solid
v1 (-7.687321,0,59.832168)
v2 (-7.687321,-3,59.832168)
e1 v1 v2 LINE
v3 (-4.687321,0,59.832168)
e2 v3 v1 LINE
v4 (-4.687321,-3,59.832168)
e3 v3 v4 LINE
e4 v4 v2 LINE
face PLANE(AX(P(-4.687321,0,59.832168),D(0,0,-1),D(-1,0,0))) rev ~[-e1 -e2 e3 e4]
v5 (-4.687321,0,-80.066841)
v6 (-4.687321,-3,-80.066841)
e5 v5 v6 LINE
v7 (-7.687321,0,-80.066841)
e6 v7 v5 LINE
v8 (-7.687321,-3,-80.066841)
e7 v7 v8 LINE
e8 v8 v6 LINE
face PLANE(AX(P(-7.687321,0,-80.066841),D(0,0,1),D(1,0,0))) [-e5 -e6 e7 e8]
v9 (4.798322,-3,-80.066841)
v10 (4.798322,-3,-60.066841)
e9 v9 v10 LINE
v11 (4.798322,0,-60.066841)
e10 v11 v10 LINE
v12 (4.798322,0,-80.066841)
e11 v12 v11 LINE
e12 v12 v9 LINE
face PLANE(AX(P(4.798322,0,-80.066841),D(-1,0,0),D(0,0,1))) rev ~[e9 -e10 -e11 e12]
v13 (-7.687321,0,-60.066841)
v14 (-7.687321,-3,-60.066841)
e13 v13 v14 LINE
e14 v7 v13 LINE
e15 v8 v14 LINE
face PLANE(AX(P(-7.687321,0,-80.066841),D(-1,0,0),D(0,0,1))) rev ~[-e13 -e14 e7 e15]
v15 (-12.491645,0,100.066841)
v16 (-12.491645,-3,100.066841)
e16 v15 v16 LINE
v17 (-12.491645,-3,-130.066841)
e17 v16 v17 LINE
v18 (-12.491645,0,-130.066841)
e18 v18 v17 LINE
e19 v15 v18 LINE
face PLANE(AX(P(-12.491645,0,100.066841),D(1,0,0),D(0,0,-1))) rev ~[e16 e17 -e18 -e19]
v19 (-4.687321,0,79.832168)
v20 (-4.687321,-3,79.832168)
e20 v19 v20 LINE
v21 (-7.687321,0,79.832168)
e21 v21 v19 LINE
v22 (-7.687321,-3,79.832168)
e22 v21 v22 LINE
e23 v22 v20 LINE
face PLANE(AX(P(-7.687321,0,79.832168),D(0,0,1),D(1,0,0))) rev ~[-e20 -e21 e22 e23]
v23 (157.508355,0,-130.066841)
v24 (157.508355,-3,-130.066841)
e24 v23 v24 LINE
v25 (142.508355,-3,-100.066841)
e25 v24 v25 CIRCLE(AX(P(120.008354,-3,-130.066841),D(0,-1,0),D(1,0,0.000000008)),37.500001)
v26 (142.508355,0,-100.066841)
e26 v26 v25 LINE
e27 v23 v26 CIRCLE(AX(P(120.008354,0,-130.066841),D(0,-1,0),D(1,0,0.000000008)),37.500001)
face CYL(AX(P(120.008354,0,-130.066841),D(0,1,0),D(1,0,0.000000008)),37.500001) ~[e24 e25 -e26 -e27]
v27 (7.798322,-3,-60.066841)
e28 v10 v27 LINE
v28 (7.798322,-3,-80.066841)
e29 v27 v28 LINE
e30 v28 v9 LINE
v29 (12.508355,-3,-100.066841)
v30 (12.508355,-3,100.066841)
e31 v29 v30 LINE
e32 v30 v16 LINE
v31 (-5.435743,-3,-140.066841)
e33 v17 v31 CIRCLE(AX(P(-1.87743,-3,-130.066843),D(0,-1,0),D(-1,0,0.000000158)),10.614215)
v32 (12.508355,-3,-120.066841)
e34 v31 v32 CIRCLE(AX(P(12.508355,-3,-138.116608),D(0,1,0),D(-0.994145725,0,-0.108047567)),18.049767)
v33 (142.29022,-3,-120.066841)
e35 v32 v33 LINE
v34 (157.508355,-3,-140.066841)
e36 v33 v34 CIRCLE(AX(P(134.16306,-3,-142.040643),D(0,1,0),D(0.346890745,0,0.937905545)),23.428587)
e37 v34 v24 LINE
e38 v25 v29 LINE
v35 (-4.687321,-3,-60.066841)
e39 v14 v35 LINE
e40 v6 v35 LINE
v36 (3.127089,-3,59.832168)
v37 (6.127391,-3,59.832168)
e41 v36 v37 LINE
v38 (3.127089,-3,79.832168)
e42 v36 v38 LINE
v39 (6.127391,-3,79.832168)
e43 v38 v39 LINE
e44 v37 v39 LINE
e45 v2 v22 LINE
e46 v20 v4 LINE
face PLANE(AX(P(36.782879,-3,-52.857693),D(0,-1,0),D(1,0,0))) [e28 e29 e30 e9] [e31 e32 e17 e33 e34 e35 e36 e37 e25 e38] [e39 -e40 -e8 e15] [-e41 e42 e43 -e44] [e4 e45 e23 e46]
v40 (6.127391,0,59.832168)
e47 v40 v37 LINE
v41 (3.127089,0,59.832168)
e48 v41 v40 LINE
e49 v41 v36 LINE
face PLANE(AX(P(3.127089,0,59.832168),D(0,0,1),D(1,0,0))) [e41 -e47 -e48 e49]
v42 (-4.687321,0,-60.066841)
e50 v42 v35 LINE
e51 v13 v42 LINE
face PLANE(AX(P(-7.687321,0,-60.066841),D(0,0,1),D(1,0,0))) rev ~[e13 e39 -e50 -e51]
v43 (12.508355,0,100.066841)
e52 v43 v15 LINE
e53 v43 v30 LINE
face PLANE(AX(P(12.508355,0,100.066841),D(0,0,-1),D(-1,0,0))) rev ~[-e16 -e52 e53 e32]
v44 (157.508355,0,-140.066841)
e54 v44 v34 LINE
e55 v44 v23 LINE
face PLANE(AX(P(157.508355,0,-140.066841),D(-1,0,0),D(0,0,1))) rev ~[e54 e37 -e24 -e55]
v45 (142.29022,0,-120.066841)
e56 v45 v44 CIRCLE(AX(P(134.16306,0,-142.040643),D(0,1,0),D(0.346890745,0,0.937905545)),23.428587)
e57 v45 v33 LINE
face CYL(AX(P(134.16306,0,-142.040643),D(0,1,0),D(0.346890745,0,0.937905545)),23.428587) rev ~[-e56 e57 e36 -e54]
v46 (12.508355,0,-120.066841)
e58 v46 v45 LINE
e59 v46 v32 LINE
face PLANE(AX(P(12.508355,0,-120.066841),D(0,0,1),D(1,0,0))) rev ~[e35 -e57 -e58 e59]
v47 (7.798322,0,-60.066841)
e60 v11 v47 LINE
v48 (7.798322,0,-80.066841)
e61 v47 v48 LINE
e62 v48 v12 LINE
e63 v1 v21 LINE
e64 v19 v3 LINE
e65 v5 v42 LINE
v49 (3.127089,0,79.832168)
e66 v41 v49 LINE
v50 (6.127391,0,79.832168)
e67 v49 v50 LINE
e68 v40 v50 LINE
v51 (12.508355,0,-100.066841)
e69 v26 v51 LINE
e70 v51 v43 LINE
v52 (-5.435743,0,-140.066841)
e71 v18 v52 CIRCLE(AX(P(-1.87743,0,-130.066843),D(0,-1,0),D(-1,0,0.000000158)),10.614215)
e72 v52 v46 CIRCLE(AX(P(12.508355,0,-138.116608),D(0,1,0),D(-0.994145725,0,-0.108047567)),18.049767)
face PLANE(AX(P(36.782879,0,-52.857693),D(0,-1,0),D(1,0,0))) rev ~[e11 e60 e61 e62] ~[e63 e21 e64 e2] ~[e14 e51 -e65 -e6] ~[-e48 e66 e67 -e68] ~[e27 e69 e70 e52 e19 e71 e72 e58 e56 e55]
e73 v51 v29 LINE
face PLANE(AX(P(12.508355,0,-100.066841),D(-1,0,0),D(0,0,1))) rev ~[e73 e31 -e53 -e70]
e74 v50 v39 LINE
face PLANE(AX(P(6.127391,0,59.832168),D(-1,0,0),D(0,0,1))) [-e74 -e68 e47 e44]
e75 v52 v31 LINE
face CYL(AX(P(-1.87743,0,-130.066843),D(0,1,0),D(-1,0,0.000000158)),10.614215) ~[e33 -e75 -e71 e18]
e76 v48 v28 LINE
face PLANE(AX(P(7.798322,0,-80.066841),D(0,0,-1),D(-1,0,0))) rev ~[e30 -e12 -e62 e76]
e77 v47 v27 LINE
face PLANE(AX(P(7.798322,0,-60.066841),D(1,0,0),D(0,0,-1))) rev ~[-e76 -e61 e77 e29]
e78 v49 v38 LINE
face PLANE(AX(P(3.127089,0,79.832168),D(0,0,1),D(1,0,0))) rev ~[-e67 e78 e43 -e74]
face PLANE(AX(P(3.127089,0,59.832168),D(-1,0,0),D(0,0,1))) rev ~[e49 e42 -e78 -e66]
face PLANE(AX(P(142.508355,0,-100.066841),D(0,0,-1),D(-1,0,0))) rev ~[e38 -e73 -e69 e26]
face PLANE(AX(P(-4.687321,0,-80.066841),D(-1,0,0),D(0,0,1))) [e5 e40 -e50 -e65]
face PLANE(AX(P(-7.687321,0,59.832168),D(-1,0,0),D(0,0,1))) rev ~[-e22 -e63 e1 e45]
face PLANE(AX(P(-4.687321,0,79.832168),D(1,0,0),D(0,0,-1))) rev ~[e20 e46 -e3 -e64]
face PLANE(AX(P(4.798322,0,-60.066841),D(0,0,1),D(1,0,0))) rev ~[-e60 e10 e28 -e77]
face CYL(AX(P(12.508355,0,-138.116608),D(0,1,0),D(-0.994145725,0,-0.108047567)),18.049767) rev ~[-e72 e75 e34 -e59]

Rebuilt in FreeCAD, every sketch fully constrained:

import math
import FreeCAD as App
import Part
import Sketcher

V = App.Vector


def add_polygon(sketch, points):
    """Adds a closed chain of lines whose ends are joined by coincident constraints."""
    first, n = sketch.GeometryCount, len(points)
    for a, b in zip(points, points[1:] + points[:1]):
        sketch.addGeometry(Part.LineSegment(App.Vector(*a, 0), App.Vector(*b, 0)), False)
    for i in range(n):
        sketch.addConstraint(Sketcher.Constraint("Coincident", first + i, 2, first + (i + 1) % n, 1))

doc = App.newDocument("Part")
body = doc.addObject("PartDesign::Body", "Body")

# Sketch on XZ plane
sketch1 = body.newObject("Sketcher::SketchObject", "Sketch")
sketch1.AttachmentSupport = (doc.getObject("XZ_Plane"), [""])
sketch1.MapMode = "FlatFace"
sketch1.addGeometry(Part.LineSegment(V(12.5, -100.1, 0), V(12.5, 100.1, 0)), False)  # 0
sketch1.addGeometry(Part.LineSegment(V(12.5, 100.1, 0), V(-12.5, 100.1, 0)), False)  # 1
sketch1.addGeometry(Part.LineSegment(V(-12.5, 100.1, 0), V(-12.5, -130.1, 0)), False)  # 2
sketch1.addGeometry(Part.ArcOfCircle(Part.Circle(V(-1.9, -130.1, 0), V(0, 0, 1), 10.6), math.radians(180), math.radians(250)), False)  # 3
sketch1.addGeometry(Part.ArcOfCircle(Part.Circle(V(12.5, -138.1, 0), V(0, 0, 1), 18), math.radians(90), math.radians(186)), False)  # 4
sketch1.addGeometry(Part.LineSegment(V(12.5, -120.1, 0), V(142.3, -120.1, 0)), False)  # 5
sketch1.addGeometry(Part.ArcOfCircle(Part.Circle(V(134.2, -142, 0), V(0, 0, 1), 23.4), math.radians(5), math.radians(70)), False)  # 6
sketch1.addGeometry(Part.LineSegment(V(157.5, -140.1, 0), V(157.5, -130.1, 0)), False)  # 7
sketch1.addGeometry(Part.ArcOfCircle(Part.Circle(V(120, -130.1, 0), V(0, 0, 1), 37.5), math.radians(0), math.radians(53)), False)  # 8
sketch1.addGeometry(Part.LineSegment(V(142.5, -100.1, 0), V(12.5, -100.1, 0)), False)  # 9
add_polygon(sketch1, [(-4.7, -80.1), (-7.7, -80.1), (-7.7, -60.1), (-4.7, -60.1)])  # lines 10-13
add_polygon(sketch1, [(4.8, -80.1), (4.8, -60.1), (7.8, -60.1), (7.8, -80.1)])  # lines 14-17
add_polygon(sketch1, [(-4.7, 79.8), (-4.7, 59.8), (-7.7, 59.8), (-7.7, 79.8)])  # lines 18-21
add_polygon(sketch1, [(6.1, 59.8), (3.1, 59.8), (3.1, 79.8), (6.1, 79.8)])  # lines 22-25
sketch1.addConstraint([
    Sketcher.Constraint("Coincident", 0, 2, 1, 1),
    Sketcher.Constraint("Coincident", 1, 2, 2, 1),
    Sketcher.Constraint("Tangent", 2, 2, 3, 1),
    Sketcher.Constraint("Coincident", 3, 2, 4, 2),
    Sketcher.Constraint("Tangent", 4, 1, 5, 1),
    Sketcher.Constraint("Coincident", 5, 2, 6, 2),
    Sketcher.Constraint("Coincident", 6, 1, 7, 1),
    Sketcher.Constraint("Tangent", 7, 2, 8, 1),
    Sketcher.Constraint("Coincident", 8, 2, 9, 1),
    Sketcher.Constraint("Coincident", 9, 2, 0, 1),
    Sketcher.Constraint("Vertical", 0),
    Sketcher.Constraint("Horizontal", 1),
    Sketcher.Constraint("Vertical", 2),
    Sketcher.Constraint("Horizontal", 5),
    Sketcher.Constraint("Vertical", 7),
    Sketcher.Constraint("Horizontal", 9),
    Sketcher.Constraint("Horizontal", 10),
    Sketcher.Constraint("Vertical", 11),
    Sketcher.Constraint("Horizontal", 12),
    Sketcher.Constraint("Vertical", 13),
    Sketcher.Constraint("Vertical", 14),
    Sketcher.Constraint("Horizontal", 15),
    Sketcher.Constraint("Vertical", 16),
    Sketcher.Constraint("Horizontal", 17),
    Sketcher.Constraint("Vertical", 18),
    Sketcher.Constraint("Horizontal", 19),
    Sketcher.Constraint("Vertical", 20),
    Sketcher.Constraint("Horizontal", 21),
    Sketcher.Constraint("Horizontal", 22),
    Sketcher.Constraint("Vertical", 23),
    Sketcher.Constraint("Horizontal", 24),
    Sketcher.Constraint("Vertical", 25),
    Sketcher.Constraint("Horizontal", 3, 3, 8, 3),
    Sketcher.Constraint("Horizontal", 3, 2, 6, 1),
    Sketcher.Constraint("Horizontal", 12, 2, 14, 2),
    Sketcher.Constraint("Horizontal", 13, 2, 16, 2),
    Sketcher.Constraint("Horizontal", 19, 2, 22, 2),
    Sketcher.Constraint("Horizontal", 21, 2, 23, 2),
    Sketcher.Constraint("Vertical", 4, 3, 0, 2),
    Sketcher.Constraint("Vertical", 13, 2, 18, 2),
    Sketcher.Constraint("Vertical", 11, 2, 19, 2),
    Sketcher.Constraint("Equal", 12, 15),
    Sketcher.Constraint("Equal", 16, 18),
    Sketcher.Constraint("Radius", 8, 37.500001),
    Sketcher.Constraint("DistanceX", 1, 2, 1, 1, 25.0),
    Sketcher.Constraint("DistanceX", 9, 2, 9, 1, 130.0),
    Sketcher.Constraint("DistanceX", 10, 2, 10, 1, 3.0),
    Sketcher.Constraint("DistanceY", 7, 1, 7, 2, 10.0),
    Sketcher.Constraint("DistanceY", 11, 1, 11, 2, 20.0),
    Sketcher.Constraint("DistanceY", 3, 3, 4, 1, 10.000002),
    Sketcher.Constraint("DistanceX", 4, 3, 6, 1, 145.0),
    Sketcher.Constraint("DistanceY", 9, 2, 10, 2, 20.0),
    Sketcher.Constraint("Radius", 3, 10.614215),
    Sketcher.Constraint("Radius", 6, 23.428587),
    Sketcher.Constraint("DistanceY", 0, 1, 0, 2, 200.133682),
    Sketcher.Constraint("DistanceY", 6, 3, 3, 3, 11.9738),
    Sketcher.Constraint("DistanceX", 22, 2, 22, 1, 3.000302),
    Sketcher.Constraint("DistanceX", 3, 3, -1, 1, 1.87743),
    Sketcher.Constraint("DistanceY", 8, 3, -1, 1, 130.066841),
    Sketcher.Constraint("DistanceX", 10, 2, -1, 1, 7.687321),
    Sketcher.Constraint("DistanceX", -1, 1, 14, 2, 4.798322),
    Sketcher.Constraint("DistanceY", -1, 1, 18, 2, 59.832168),
    Sketcher.Constraint("DistanceX", -1, 1, 22, 2, 3.127089),
])
pad1 = body.newObject("PartDesign::Pad", "Pad")
pad1.Profile = sketch1
pad1.Length = 3

doc.recompute()
